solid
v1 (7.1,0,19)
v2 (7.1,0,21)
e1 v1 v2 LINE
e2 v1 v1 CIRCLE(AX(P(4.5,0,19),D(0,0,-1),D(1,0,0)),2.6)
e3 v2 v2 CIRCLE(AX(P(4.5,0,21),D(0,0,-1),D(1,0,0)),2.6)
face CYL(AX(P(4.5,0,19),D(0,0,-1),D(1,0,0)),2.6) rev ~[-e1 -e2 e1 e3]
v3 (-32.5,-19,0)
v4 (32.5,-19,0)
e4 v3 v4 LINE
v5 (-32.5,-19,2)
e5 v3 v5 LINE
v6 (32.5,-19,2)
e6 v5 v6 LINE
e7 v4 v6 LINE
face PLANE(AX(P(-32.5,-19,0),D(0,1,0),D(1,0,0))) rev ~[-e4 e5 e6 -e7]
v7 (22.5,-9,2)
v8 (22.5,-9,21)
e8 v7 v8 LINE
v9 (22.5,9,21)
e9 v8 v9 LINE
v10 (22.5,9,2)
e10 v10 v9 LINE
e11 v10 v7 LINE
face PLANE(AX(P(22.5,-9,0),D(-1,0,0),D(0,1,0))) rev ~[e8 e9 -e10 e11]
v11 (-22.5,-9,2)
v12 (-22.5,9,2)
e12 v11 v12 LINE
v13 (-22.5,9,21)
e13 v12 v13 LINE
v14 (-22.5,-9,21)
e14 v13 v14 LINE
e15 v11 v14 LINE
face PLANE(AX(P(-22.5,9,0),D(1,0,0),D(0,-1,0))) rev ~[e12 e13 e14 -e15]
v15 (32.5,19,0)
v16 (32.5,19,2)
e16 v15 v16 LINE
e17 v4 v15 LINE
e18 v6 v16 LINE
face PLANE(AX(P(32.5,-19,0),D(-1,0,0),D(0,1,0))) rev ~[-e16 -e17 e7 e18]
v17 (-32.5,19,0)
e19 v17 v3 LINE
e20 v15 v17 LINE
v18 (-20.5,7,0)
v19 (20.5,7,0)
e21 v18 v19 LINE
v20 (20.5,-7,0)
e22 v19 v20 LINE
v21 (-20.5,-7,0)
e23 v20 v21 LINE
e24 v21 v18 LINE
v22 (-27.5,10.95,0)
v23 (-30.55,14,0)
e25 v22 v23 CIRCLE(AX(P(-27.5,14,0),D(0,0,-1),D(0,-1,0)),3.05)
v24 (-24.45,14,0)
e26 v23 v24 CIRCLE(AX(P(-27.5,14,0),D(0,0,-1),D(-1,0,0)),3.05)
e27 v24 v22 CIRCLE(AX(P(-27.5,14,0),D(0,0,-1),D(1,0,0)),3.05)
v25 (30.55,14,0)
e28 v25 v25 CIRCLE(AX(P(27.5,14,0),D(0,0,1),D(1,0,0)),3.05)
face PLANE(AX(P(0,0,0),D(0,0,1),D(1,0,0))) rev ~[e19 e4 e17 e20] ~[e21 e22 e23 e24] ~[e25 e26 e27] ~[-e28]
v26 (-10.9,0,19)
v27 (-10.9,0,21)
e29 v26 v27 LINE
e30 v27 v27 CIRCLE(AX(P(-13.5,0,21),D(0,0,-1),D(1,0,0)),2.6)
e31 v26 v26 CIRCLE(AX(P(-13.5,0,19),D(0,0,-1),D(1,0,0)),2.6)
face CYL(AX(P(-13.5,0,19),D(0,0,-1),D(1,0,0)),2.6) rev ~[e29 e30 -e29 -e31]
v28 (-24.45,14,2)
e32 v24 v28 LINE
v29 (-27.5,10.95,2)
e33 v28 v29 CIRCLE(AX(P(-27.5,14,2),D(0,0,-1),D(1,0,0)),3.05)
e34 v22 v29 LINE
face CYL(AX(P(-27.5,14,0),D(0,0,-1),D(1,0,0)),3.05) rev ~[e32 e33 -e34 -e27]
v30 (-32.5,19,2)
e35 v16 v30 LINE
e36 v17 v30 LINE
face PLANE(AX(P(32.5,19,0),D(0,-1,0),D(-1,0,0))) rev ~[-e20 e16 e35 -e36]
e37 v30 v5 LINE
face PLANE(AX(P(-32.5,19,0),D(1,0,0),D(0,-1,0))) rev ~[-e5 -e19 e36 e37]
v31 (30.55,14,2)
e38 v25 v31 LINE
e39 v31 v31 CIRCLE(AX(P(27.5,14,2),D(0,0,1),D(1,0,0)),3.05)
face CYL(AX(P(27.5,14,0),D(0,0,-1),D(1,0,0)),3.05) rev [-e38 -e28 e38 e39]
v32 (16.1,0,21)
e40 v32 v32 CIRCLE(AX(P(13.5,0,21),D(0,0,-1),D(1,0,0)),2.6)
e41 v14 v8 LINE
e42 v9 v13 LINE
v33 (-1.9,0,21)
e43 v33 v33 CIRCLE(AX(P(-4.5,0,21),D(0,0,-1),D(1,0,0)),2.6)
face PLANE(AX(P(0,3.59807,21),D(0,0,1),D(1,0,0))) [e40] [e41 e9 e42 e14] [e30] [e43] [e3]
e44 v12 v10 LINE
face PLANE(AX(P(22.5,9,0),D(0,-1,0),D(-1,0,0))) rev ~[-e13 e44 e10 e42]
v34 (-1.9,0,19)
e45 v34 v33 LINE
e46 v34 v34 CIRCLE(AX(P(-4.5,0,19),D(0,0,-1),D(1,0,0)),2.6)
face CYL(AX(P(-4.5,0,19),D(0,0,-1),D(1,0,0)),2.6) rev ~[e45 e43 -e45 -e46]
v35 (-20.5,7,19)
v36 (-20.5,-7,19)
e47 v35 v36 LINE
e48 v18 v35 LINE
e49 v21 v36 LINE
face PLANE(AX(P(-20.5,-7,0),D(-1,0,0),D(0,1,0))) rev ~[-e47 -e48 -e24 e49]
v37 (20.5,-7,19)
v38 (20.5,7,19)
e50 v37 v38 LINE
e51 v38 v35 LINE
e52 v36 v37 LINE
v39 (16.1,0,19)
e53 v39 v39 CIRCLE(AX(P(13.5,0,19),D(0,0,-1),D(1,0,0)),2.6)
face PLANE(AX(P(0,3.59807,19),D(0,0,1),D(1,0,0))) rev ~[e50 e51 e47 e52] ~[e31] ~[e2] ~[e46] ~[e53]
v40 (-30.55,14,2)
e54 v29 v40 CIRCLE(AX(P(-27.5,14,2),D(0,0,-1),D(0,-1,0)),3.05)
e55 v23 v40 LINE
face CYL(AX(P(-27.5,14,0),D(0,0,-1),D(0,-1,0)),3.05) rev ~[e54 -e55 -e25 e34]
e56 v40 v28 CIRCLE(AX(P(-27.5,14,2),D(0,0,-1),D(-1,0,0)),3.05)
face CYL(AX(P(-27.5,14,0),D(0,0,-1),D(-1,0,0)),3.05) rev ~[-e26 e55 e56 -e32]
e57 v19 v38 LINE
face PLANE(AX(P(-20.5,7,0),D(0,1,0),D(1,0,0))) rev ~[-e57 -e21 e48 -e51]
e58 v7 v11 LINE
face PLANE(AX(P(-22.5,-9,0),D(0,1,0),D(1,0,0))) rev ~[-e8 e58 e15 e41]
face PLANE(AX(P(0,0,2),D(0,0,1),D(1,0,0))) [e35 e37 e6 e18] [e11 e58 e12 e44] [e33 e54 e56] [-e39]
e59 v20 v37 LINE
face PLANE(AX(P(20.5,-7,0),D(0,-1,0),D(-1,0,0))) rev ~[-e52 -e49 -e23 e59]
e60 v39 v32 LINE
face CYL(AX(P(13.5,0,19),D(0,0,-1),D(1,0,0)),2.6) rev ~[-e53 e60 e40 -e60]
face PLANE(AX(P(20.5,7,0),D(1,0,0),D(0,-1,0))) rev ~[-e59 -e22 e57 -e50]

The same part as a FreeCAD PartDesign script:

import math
import FreeCAD as App
import Part
import Sketcher
from FreeCAD import Vector


def add_polygon(sketch, points):
    """Adds a closed chain of lines whose ends are joined by coincident constraints."""
    first, n = sketch.GeometryCount, len(points)
    for a, b in zip(points, points[1:] + points[:1]):
        sketch.addGeometry(Part.LineSegment(App.Vector(*a, 0), App.Vector(*b, 0)), False)
    for i in range(n):
        sketch.addConstraint(Sketcher.Constraint("Coincident", first + i, 2, first + (i + 1) % n, 1))

doc = App.newDocument("Part")
params = doc.addObject("Spreadsheet::Sheet", "Params")
for row, (alias, value) in enumerate([
    ("sketch1_width", "45 mm"),
    ("sketch1_width2", "41 mm"),
    ("sketch1_height", "18 mm"),
    ("sketch1_height2", "14 mm"),
    ("pad1_length", "21 mm"),
    ("sketch2_diameter", "5.2 mm"),
    ("sketch2_width", "41 mm"),
    ("sketch2_height", "14 mm"),
    ("pad2_length", "2 mm"),
    ("sketch3_diameter", "6.1 mm"),
    ("sketch3_width", "65 mm"),
    ("sketch3_width2", "45 mm"),
    ("sketch3_height", "38 mm"),
    ("sketch3_height2", "18 mm"),
    ("pad3_length", "2 mm"),
], start=1):
    params.set(f"A{row}", alias)
    params.set(f"B{row}", "=" + value)
    params.setAlias(f"B{row}", alias)

body = doc.addObject("PartDesign::Body", "Body")

sketch1 = doc.addObject("Sketcher::SketchObject", "Sketch")
body.addObject(sketch1)
sketch1.AttachmentSupport = (doc.XY_Plane, [""])
sketch1.MapMode = "FlatFace"
add_polygon(sketch1, [(22, -9), (22, 9), (-22, 9), (-22, -9)])
add_polygon(sketch1, [(20, -7), (-20, -7), (-20, 7), (20, 7)])
sketch1.addConstraint(Sketcher.Constraint("Vertical", 0))
sketch1.addConstraint(Sketcher.Constraint("Horizontal", 1))
sketch1.addConstraint(Sketcher.Constraint("Vertical", 2))
sketch1.addConstraint(Sketcher.Constraint("Horizontal", 3))
sketch1.addConstraint(Sketcher.Constraint("Horizontal", 4))
sketch1.addConstraint(Sketcher.Constraint("Vertical", 5))
sketch1.addConstraint(Sketcher.Constraint("Horizontal", 6))
sketch1.addConstraint(Sketcher.Constraint("Vertical", 7))
sketch1.addConstraint(Sketcher.Constraint("Symmetric", 0, 2, 2, 2, -1, 1))
sketch1.addConstraint(Sketcher.Constraint("Symmetric", 4, 2, 6, 2, -1, 1))
sketch1.addConstraint(Sketcher.Constraint("DistanceX", 1, 2, 1, 1, 45.0))
sketch1.addConstraint(Sketcher.Constraint("DistanceX", 4, 2, 4, 1, 41.0))
sketch1.addConstraint(Sketcher.Constraint("DistanceY", 0, 1, 0, 2, 18.0))
sketch1.addConstraint(Sketcher.Constraint("DistanceY", 5, 1, 5, 2, 14.0))
sketch1.setExpression("Constraints[18]", "Params.sketch1_width")
sketch1.setExpression("Constraints[19]", "Params.sketch1_width2")
sketch1.setExpression("Constraints[20]", "Params.sketch1_height")
sketch1.setExpression("Constraints[21]", "Params.sketch1_height2")
pad1 = doc.addObject("PartDesign::Pad", "Pad")
body.addObject(pad1)
pad1.Profile = sketch1
pad1.setExpression("Length", "Params.pad1_length")

sketch2 = doc.addObject("Sketcher::SketchObject", "Sketch001")
body.addObject(sketch2)
sketch2.AttachmentSupport = (doc.XY_Plane, [""])
sketch2.MapMode = "FlatFace"
sketch2.AttachmentOffset = App.Placement(Vector(0, 0, 19), App.Rotation())
add_polygon(sketch2, [(20.5, 7), (-20.5, 7), (-20.5, -7), (20.5, -7)])
sketch2.addGeometry(Part.Circle(Vector(-13.5, 0, 0), Vector(0, 0, 1), 2.6), False)
sketch2.addGeometry(Part.Circle(Vector(-4.5, 0, 0), Vector(0, 0, 1), 2.6), False)
sketch2.addGeometry(Part.Circle(Vector(4.5, 0, 0), Vector(0, 0, 1), 2.6), False)
sketch2.addGeometry(Part.Circle(Vector(13.5, 0, 0), Vector(0, 0, 1), 2.6), False)
sketch2.addConstraint(Sketcher.Constraint("Horizontal", 0))
sketch2.addConstraint(Sketcher.Constraint("Vertical", 1))
sketch2.addConstraint(Sketcher.Constraint("Horizontal", 2))
sketch2.addConstraint(Sketcher.Constraint("Vertical", 3))
sketch2.addConstraint(Sketcher.Constraint("Equal", 4, 5))
sketch2.addConstraint(Sketcher.Constraint("Equal", 5, 6))
sketch2.addConstraint(Sketcher.Constraint("Equal", 6, 7))
sketch2.addConstraint(Sketcher.Constraint("Symmetric", 5, 3, 6, 3, -1, 1))
sketch2.addConstraint(Sketcher.Constraint("Symmetric", 4, 3, 7, 3, -1, 1))
sketch2.addConstraint(Sketcher.Constraint("Symmetric", 0, 2, 2, 2, -1, 1))
sketch2.addConstraint(Sketcher.Constraint("PointOnObject", 4, 3, -1))
sketch2.addConstraint(Sketcher.Constraint("PointOnObject", 5, 3, -1))
sketch2.addConstraint(Sketcher.Constraint("Diameter", 4, 5.2))
sketch2.addConstraint(Sketcher.Constraint("DistanceX", 0, 2, 0, 1, 41.0))
sketch2.addConstraint(Sketcher.Constraint("DistanceY", 1, 2, 1, 1, 14.0))
sketch2.addConstraint(Sketcher.Constraint("DistanceX", 4, 3, 5, 3, 9.0))
sketch2.addConstraint(Sketcher.Constraint("DistanceX", 5, 3, 6, 3, 9.0))
sketch2.setExpression("Constraints[16]", "Params.sketch2_diameter")
sketch2.setExpression("Constraints[17]", "Params.sketch2_width")
sketch2.setExpression("Constraints[18]", "Params.sketch2_height")
pad2 = doc.addObject("PartDesign::Pad", "Pad001")
body.addObject(pad2)
pad2.Profile = sketch2
pad2.setExpression("Length", "Params.pad2_length")

sketch3 = doc.addObject("Sketcher::SketchObject", "Sketch002")
body.addObject(sketch3)
sketch3.AttachmentSupport = (doc.XY_Plane, [""])
sketch3.MapMode = "FlatFace"
add_polygon(sketch3, [(-32.5, 19), (-32.5, -19), (32.5, -19), (32.5, 19)])
add_polygon(sketch3, [(-22.5, -9), (-22.5, 9), (22.5, 9), (22.5, -9)])
sketch3.addGeometry(Part.ArcOfCircle(Part.Circle(Vector(-27.5, 14, 0), Vector(0, 0, 1), 3), math.radians(0), math.radians(180)), False)
sketch3.addGeometry(Part.ArcOfCircle(Part.Circle(Vector(-27.5, 14, 0), Vector(0, 0, 1), 3), math.radians(-90), math.radians(0)), False)
sketch3.addGeometry(Part.ArcOfCircle(Part.Circle(Vector(-27.5, 14, 0), Vector(0, 0, 1), 3), math.radians(180), math.radians(270)), False)
sketch3.addGeometry(Part.Circle(Vector(27.5, 14, 0), Vector(0, 0, 1), 3), False)
sketch3.addConstraint(Sketcher.Constraint("Tangent", 8, 1, 9, 2))
sketch3.addConstraint(Sketcher.Constraint("Tangent", 9, 1, 10, 2))
sketch3.addConstraint(Sketcher.Constraint("Tangent", 10, 1, 8, 2))
sketch3.addConstraint(Sketcher.Constraint("Vertical", 0))
sketch3.addConstraint(Sketcher.Constraint("Horizontal", 1))
sketch3.addConstraint(Sketcher.Constraint("Vertical", 2))
sketch3.addConstraint(Sketcher.Constraint("Horizontal", 3))
sketch3.addConstraint(Sketcher.Constraint("Vertical", 4))
sketch3.addConstraint(Sketcher.Constraint("Horizontal", 5))
sketch3.addConstraint(Sketcher.Constraint("Vertical", 6))
sketch3.addConstraint(Sketcher.Constraint("Horizontal", 7))
sketch3.addConstraint(Sketcher.Constraint("Equal", 10, 11))
sketch3.addConstraint(Sketcher.Constraint("Symmetric", 0, 2, 2, 2, -1, 1))
sketch3.addConstraint(Sketcher.Constraint("Symmetric", 4, 2, 6, 2, -1, 1))
sketch3.addConstraint(Sketcher.Constraint("Symmetric", 8, 3, 11, 3, -2))
sketch3.addConstraint(Sketcher.Constraint("Horizontal", 11, 3, 8, 1))
sketch3.addConstraint(Sketcher.Constraint("Horizontal", 8, 1, 10, 1))
sketch3.addConstraint(Sketcher.Constraint("Vertical", 10, 3, 9, 1))
sketch3.addConstraint(Sketcher.Constraint("Diameter", 11, 6.1))
sketch3.addConstraint(Sketcher.Constraint("DistanceX", 1, 1, 1, 2, 65.0))
sketch3.addConstraint(Sketcher.Constraint("DistanceX", 5, 1, 5, 2, 45.0))
sketch3.addConstraint(Sketcher.Constraint("DistanceY", 0, 2, 0, 1, 38.0))
sketch3.addConstraint(Sketcher.Constraint("DistanceY", 4, 1, 4, 2, 18.0))
sketch3.addConstraint(Sketcher.Constraint("DistanceY", -1, 1, 8, 3, 14.0))
sketch3.addConstraint(Sketcher.Constraint("DistanceX", 8, 3, 11, 3, 55.0))
sketch3.setExpression("Constraints[26]", "Params.sketch3_diameter")
sketch3.setExpression("Constraints[27]", "Params.sketch3_width")
sketch3.setExpression("Constraints[28]", "Params.sketch3_width2")
sketch3.setExpression("Constraints[29]", "Params.sketch3_height")
sketch3.setExpression("Constraints[30]", "Params.sketch3_height2")
pad3 = doc.addObject("PartDesign::Pad", "Pad002")
body.addObject(pad3)
pad3.Profile = sketch3
pad3.setExpression("Length", "Params.pad3_length")

doc.recompute()
